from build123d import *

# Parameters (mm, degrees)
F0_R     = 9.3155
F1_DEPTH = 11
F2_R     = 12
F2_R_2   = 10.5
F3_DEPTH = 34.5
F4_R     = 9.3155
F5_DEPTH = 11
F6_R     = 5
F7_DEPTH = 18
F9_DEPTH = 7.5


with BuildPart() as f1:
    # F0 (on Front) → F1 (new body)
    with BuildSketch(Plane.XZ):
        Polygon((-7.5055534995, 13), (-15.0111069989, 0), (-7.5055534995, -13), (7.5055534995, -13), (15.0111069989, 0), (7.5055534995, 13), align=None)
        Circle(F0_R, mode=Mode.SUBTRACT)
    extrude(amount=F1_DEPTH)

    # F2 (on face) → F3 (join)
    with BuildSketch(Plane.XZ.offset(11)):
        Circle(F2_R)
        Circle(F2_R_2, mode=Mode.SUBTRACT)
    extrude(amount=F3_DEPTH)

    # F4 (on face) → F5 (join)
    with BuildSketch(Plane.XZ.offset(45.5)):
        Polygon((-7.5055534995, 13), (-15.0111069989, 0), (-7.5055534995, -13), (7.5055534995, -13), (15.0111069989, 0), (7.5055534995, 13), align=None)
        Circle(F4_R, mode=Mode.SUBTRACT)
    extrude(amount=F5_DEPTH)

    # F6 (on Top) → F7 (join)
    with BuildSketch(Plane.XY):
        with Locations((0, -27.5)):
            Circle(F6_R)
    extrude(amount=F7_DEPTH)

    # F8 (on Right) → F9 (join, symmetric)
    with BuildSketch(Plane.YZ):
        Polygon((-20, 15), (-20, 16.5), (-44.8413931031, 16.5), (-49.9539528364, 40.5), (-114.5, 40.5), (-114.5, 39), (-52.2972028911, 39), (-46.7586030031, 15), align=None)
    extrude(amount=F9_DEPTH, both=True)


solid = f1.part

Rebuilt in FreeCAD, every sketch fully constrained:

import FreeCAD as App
import Part
import Sketcher
from FreeCAD import Vector
Q = App.Units.Quantity


def add_polygon(sketch, points):
    """Adds a closed chain of lines whose ends are joined by coincident constraints."""
    first, n = sketch.GeometryCount, len(points)
    for a, b in zip(points, points[1:] + points[:1]):
        sketch.addGeometry(Part.LineSegment(App.Vector(*a, 0), App.Vector(*b, 0)), False)
    for i in range(n):
        sketch.addConstraint(Sketcher.Constraint("Coincident", first + i, 2, first + (i + 1) % n, 1))

doc = App.newDocument("Part")
body = doc.addObject("PartDesign::Body", "Body")

sketch1 = body.newObject("Sketcher::SketchObject", "Sketch")
sketch1.AttachmentSupport = (doc.getObject("XZ_Plane"), [""])
sketch1.MapMode = "FlatFace"
add_polygon(sketch1, [(-7.505554, 13), (-15.011107, 0), (-7.505554, -13), (7.505554, -13), (15.011107, 0), (7.505554, 13)])
sketch1.addGeometry(Part.Circle(Vector(0, 0, 0), Vector(0, 0, 1), 9.3155), False)
sketch1.addConstraint(Sketcher.Constraint("Horizontal", 2))
sketch1.addConstraint(Sketcher.Constraint("Horizontal", 5))
sketch1.addConstraint(Sketcher.Constraint("Coincident", 6, 3, -1, 1))
sketch1.addConstraint(Sketcher.Constraint("Symmetric", 0, 2, 3, 2, -1, 1))
sketch1.addConstraint(Sketcher.Constraint("Symmetric", 1, 2, 4, 2, -1, 1))
sketch1.addConstraint(Sketcher.Constraint("PointOnObject", 0, 2, -1))
sketch1.addConstraint(Sketcher.Constraint("Parallel", 0, 3))
sketch1.addConstraint(Sketcher.Constraint("Vertical", 2, 2, 4, 2))
sketch1.addConstraint(Sketcher.Constraint("Angle", 0, Q("-120 deg")))
sketch1.addConstraint(Sketcher.Constraint("Diameter", 6, 18.631))
sketch1.addConstraint(Sketcher.Constraint("DistanceY", 1, 2, -1, 1, 13.0))
sketch1.addConstraint(Sketcher.Constraint("DistanceX", 2, 1, 2, 2, 15.011107))
pad1 = body.newObject("PartDesign::Pad", "Pad")
pad1.Profile = sketch1
pad1.Length = 11

sketch2 = body.newObject("Sketcher::SketchObject", "Sketch001")
sketch2.AttachmentSupport = (doc.getObject("XZ_Plane"), [""])
sketch2.MapMode = "FlatFace"
sketch2.AttachmentOffset = App.Placement(Vector(0, 0, 11), App.Rotation())
sketch2.addGeometry(Part.Circle(Vector(0, 0, 0), Vector(0, 0, 1), 12), False)
sketch2.addGeometry(Part.Circle(Vector(0, 0, 0), Vector(0, 0, 1), 10.5), False)
sketch2.addConstraint(Sketcher.Constraint("Coincident", 0, 3, -1, 1))
sketch2.addConstraint(Sketcher.Constraint("Coincident", 1, 3, -1, 1))
sketch2.addConstraint(Sketcher.Constraint("Diameter", 0, 24.0))
sketch2.addConstraint(Sketcher.Constraint("Diameter", 1, 21.0))
pad2 = body.newObject("PartDesign::Pad", "Pad001")
pad2.Profile = sketch2
pad2.Length = 34.5

sketch3 = body.newObject("Sketcher::SketchObject", "Sketch002")
sketch3.AttachmentSupport = (doc.getObject("XZ_Plane"), [""])
sketch3.MapMode = "FlatFace"
sketch3.AttachmentOffset = App.Placement(Vector(0, 0, 45.5), App.Rotation())
add_polygon(sketch3, [(-7.505554, 13), (-15.011107, 0), (-7.505554, -13), (7.505554, -13), (15.011107, 0), (7.505554, 13)])
sketch3.addGeometry(Part.Circle(Vector(0, 0, 0), Vector(0, 0, 1), 9.3155), False)
sketch3.addConstraint(Sketcher.Constraint("Horizontal", 2))
sketch3.addConstraint(Sketcher.Constraint("Horizontal", 5))
sketch3.addConstraint(Sketcher.Constraint("Coincident", 6, 3, -1, 1))
sketch3.addConstraint(Sketcher.Constraint("Symmetric", 0, 2, 3, 2, -1, 1))
sketch3.addConstraint(Sketcher.Constraint("Symmetric", 1, 2, 4, 2, -1, 1))
sketch3.addConstraint(Sketcher.Constraint("PointOnObject", 0, 2, -1))
sketch3.addConstraint(Sketcher.Constraint("Parallel", 0, 3))
sketch3.addConstraint(Sketcher.Constraint("Vertical", 2, 2, 4, 2))
sketch3.addConstraint(Sketcher.Constraint("Angle", 0, Q("-120 deg")))
sketch3.addConstraint(Sketcher.Constraint("Diameter", 6, 18.631))
sketch3.addConstraint(Sketcher.Constraint("DistanceY", 1, 2, -1, 1, 13.0))
sketch3.addConstraint(Sketcher.Constraint("DistanceX", 2, 1, 2, 2, 15.011107))
pad3 = body.newObject("PartDesign::Pad", "Pad002")
pad3.Profile = sketch3
pad3.Length = 11

sketch4 = body.newObject("Sketcher::SketchObject", "Sketch003")
sketch4.AttachmentSupport = (doc.getObject("XY_Plane"), [""])
sketch4.MapMode = "FlatFace"
sketch4.addGeometry(Part.Circle(Vector(0, -27.5, 0), Vector(0, 0, 1), 5), False)
sketch4.addConstraint(Sketcher.Constraint("PointOnObject", 0, 3, -2))
sketch4.addConstraint(Sketcher.Constraint("Diameter", 0, 10.0))
sketch4.addConstraint(Sketcher.Constraint("DistanceY", 0, 3, -1, 1, 27.5))
pad4 = body.newObject("PartDesign::Pad", "Pad003")
pad4.Profile = sketch4
pad4.Length = 18

sketch5 = body.newObject("Sketcher::SketchObject", "Sketch004")
sketch5.AttachmentSupport = (doc.getObject("YZ_Plane"), [""])
sketch5.MapMode = "FlatFace"
add_polygon(sketch5, [(-20, 15), (-20, 16.5), (-44.841393, 16.5), (-49.953953, 40.5), (-114.5, 40.5), (-114.5, 39), (-52.297203, 39), (-46.758603, 15)])
sketch5.addConstraint(Sketcher.Constraint("Vertical", 0))
sketch5.addConstraint(Sketcher.Constraint("Horizontal", 1))
sketch5.addConstraint(Sketcher.Constraint("Horizontal", 3))
sketch5.addConstraint(Sketcher.Constraint("Vertical", 4))
sketch5.addConstraint(Sketcher.Constraint("Horizontal", 5))
sketch5.addConstraint(Sketcher.Constraint("Horizontal", 7))
sketch5.addConstraint(Sketcher.Constraint("Equal", 0, 4))
sketch5.addConstraint(Sketcher.Constraint("DistanceY", 0, 1, 0, 2, 1.5))
sketch5.addConstraint(Sketcher.Constraint("DistanceX", 0, 2, -1, 1, 20.0))
sketch5.addConstraint(Sketcher.Constraint("DistanceY", -1, 1, 4, 2, 39.0))
sketch5.addConstraint(Sketcher.Constraint("DistanceY", -1, 1, 6, 2, 15.0))
sketch5.addConstraint(Sketcher.Constraint("DistanceX", 3, 2, -1, 1, 114.5))
sketch5.addConstraint(Sketcher.Constraint("DistanceX", 5, 2, 6, 2, 5.5386))
sketch5.addConstraint(Sketcher.Constraint("DistanceX", 1, 2, 1, 1, 24.841393))
sketch5.addConstraint(Sketcher.Constraint("DistanceX", 3, 2, 3, 1, 64.546047))
sketch5.addConstraint(Sketcher.Constraint("DistanceX", 5, 1, 5, 2, 62.202797))
pad5 = body.newObject("PartDesign::Pad", "Pad004")
pad5.Profile = sketch5
pad5.Length = 15
pad5.Midplane = True

doc.recompute()
